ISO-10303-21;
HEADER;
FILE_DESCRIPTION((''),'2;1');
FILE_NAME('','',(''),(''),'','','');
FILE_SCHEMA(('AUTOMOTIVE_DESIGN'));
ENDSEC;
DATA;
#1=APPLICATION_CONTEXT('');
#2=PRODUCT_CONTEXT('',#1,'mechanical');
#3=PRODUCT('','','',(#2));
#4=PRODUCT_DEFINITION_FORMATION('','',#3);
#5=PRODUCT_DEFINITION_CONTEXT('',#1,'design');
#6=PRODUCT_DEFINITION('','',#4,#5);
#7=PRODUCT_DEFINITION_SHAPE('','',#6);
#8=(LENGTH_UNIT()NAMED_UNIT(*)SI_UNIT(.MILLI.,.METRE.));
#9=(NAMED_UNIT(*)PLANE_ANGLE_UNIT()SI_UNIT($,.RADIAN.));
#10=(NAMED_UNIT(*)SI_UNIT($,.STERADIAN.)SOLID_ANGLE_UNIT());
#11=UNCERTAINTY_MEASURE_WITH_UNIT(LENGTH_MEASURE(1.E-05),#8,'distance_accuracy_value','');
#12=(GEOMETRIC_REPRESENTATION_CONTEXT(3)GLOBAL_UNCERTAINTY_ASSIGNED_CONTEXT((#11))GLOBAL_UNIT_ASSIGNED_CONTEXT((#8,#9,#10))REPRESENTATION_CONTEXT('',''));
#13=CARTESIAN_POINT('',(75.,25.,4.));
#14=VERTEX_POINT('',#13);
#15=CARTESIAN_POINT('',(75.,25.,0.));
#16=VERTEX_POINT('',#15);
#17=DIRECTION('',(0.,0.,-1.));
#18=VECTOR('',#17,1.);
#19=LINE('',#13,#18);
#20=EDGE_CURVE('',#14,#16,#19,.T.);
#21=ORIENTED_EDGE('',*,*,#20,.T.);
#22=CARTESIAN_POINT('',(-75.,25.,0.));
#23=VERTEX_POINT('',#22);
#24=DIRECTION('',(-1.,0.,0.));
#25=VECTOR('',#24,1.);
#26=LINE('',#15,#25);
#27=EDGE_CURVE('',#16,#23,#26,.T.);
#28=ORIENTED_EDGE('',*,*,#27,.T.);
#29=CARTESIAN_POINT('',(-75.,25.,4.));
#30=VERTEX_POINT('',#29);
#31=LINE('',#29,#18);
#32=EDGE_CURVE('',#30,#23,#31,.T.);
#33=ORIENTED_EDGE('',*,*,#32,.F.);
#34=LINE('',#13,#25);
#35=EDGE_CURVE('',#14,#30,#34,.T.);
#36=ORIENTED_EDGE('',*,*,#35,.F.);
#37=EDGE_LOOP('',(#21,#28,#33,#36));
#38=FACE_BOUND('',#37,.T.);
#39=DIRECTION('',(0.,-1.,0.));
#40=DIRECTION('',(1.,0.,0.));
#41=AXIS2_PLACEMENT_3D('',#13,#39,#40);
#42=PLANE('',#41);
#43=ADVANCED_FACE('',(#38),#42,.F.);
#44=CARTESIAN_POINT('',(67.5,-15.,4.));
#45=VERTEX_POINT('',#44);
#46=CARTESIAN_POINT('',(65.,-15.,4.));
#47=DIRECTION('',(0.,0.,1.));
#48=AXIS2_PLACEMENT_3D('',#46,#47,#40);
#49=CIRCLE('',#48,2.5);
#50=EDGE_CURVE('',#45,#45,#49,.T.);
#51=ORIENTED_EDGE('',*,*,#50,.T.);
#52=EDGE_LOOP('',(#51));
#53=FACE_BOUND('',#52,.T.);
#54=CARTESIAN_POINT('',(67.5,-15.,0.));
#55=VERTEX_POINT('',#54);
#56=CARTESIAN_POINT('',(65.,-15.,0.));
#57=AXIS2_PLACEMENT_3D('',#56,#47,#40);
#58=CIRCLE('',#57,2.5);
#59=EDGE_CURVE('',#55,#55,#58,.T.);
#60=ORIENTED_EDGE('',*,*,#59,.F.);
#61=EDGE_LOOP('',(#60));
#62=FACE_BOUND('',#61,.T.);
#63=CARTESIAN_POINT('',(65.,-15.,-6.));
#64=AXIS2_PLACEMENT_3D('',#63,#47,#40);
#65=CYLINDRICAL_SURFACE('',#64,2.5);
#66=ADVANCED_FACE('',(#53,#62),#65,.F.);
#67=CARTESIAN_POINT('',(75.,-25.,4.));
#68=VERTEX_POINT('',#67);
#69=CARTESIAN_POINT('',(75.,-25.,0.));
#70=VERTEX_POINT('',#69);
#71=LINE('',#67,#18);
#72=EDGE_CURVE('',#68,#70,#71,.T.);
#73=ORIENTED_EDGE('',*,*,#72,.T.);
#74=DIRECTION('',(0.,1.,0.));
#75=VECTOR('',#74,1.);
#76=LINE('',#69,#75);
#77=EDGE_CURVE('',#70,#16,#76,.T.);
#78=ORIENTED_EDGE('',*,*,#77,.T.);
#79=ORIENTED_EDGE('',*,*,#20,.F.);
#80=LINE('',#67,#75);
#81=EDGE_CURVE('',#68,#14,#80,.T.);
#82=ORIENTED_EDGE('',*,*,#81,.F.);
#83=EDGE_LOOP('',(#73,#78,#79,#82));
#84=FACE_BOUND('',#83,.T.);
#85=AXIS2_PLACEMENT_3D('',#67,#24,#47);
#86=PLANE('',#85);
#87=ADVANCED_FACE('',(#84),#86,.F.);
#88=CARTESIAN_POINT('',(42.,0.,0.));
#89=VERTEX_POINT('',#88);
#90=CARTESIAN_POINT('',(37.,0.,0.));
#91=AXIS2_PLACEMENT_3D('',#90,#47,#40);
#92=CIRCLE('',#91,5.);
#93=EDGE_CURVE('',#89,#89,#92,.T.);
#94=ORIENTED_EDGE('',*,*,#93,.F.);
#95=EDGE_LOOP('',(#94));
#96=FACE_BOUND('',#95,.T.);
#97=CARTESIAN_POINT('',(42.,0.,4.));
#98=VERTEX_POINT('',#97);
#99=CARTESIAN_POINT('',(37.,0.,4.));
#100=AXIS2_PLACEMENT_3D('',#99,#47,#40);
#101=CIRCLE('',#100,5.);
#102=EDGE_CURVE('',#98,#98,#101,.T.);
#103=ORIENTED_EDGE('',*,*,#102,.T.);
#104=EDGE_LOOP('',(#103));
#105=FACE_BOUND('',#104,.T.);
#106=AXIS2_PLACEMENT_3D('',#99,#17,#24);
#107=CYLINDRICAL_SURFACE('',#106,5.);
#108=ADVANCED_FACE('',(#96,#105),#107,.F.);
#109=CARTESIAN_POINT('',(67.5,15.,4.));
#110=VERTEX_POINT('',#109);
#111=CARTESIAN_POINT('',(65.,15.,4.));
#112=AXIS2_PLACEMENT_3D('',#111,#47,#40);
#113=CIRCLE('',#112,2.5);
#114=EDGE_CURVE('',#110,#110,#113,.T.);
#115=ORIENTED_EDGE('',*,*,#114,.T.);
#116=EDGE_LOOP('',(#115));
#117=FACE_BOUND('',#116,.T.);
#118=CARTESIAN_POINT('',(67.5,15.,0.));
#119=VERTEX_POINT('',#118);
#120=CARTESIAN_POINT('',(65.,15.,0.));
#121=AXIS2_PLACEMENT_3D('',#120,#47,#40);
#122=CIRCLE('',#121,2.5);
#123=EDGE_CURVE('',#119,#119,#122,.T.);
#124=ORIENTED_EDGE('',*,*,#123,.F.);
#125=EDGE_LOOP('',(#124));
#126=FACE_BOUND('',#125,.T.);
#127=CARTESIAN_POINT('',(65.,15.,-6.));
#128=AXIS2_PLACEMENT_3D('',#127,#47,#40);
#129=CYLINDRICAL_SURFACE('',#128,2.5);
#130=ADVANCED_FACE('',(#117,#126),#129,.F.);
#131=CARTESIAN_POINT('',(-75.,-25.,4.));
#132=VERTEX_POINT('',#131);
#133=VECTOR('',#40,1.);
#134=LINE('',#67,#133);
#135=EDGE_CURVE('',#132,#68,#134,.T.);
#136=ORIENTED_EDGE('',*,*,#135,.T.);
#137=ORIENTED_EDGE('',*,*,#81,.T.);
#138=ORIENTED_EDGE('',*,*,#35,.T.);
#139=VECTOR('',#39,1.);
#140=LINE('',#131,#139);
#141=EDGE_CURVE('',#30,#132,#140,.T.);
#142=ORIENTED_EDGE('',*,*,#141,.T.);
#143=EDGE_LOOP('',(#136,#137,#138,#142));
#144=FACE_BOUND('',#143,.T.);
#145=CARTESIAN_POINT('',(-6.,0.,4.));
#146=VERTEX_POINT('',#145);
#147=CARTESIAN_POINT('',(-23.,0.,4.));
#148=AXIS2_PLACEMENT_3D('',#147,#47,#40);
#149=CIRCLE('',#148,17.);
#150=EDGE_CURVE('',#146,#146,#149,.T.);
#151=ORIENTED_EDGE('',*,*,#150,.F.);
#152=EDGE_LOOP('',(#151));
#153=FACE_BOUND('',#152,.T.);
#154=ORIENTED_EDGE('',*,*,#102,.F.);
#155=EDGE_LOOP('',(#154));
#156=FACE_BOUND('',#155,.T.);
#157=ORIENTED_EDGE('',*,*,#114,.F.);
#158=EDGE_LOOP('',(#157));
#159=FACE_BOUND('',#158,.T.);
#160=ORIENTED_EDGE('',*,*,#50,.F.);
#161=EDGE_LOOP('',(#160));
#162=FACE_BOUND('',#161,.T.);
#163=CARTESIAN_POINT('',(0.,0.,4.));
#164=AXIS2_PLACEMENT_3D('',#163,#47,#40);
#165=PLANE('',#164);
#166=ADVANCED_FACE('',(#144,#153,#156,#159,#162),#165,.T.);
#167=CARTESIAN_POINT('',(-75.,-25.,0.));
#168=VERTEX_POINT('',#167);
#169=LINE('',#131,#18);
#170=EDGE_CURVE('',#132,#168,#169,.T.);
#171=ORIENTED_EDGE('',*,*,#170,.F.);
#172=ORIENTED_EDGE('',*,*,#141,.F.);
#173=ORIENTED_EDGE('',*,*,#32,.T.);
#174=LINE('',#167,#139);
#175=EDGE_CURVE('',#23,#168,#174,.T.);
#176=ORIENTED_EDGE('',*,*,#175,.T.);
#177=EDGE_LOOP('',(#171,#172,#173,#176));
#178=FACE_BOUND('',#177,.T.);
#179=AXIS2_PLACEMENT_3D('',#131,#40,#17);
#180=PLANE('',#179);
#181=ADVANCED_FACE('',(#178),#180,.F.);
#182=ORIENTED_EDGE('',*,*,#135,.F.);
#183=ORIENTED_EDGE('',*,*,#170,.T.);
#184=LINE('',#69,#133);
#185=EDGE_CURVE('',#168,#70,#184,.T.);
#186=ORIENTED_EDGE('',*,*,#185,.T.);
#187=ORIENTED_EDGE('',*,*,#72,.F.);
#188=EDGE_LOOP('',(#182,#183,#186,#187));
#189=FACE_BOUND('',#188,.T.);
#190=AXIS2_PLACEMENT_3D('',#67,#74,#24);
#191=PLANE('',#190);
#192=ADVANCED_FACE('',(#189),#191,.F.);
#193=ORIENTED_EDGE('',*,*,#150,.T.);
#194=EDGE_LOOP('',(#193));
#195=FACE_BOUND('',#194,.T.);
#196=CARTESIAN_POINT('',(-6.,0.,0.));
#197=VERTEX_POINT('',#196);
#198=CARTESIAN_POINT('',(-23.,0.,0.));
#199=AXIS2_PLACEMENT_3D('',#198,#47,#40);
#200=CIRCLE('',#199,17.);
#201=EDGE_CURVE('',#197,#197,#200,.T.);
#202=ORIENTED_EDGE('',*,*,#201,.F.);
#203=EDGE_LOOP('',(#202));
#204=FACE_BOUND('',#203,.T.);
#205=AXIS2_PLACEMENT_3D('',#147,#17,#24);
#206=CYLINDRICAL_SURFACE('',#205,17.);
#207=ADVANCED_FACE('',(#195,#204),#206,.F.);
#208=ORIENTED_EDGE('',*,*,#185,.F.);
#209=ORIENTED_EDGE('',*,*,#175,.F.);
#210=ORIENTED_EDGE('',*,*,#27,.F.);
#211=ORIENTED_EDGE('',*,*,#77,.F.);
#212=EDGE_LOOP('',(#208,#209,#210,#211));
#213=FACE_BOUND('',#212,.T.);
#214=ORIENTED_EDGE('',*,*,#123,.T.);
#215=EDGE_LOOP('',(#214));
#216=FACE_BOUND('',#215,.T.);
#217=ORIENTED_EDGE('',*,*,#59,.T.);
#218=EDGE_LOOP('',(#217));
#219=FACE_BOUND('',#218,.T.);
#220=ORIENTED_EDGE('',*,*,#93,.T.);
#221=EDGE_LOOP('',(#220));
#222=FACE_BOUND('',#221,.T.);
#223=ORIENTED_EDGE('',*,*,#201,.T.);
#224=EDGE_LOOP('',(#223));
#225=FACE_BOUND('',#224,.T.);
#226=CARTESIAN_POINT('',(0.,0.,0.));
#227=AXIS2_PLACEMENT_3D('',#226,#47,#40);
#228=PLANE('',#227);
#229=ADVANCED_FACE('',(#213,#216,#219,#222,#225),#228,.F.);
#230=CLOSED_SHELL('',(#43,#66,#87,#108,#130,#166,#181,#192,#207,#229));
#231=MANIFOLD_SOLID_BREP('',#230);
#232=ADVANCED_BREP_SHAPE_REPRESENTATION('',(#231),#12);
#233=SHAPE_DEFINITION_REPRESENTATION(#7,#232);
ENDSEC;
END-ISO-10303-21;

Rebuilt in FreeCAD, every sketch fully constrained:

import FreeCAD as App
import Part
import Sketcher

V = App.Vector


def add_polygon(sketch, points):
    """Adds a closed chain of lines whose ends are joined by coincident constraints."""
    first, n = sketch.GeometryCount, len(points)
    for a, b in zip(points, points[1:] + points[:1]):
        sketch.addGeometry(Part.LineSegment(App.Vector(*a, 0), App.Vector(*b, 0)), False)
    for i in range(n):
        sketch.addConstraint(Sketcher.Constraint("Coincident", first + i, 2, first + (i + 1) % n, 1))

doc = App.newDocument("Part")
body = doc.addObject("PartDesign::Body", "Body")

sketch1 = body.newObject("Sketcher::SketchObject", "Sketch")
sketch1.AttachmentSupport = (doc.getObject("XY_Plane"), [""])
sketch1.MapMode = "FlatFace"
add_polygon(sketch1, [(-75, 25), (-75, -25), (75, -25), (75, 25)])
sketch1.addGeometry(Part.Circle(V(-23, 0, 0), V(0, 0, 1), 17), False)
sketch1.addGeometry(Part.Circle(V(37, 0, 0), V(0, 0, 1), 5), False)
sketch1.addConstraint([
    Sketcher.Constraint("Vertical", 0),
    Sketcher.Constraint("Horizontal", 1),
    Sketcher.Constraint("Vertical", 2),
    Sketcher.Constraint("Horizontal", 3),
    Sketcher.Constraint("Symmetric", 0, 2, 2, 2, -1, 1),
    Sketcher.Constraint("PointOnObject", 4, 3, -1),
    Sketcher.Constraint("PointOnObject", 5, 3, -1),
    Sketcher.Constraint("Diameter", 4, 34.0),
    Sketcher.Constraint("Diameter", 5, 10.0),
    Sketcher.Constraint("DistanceX", 1, 1, 1, 2, 150.0),
    Sketcher.Constraint("DistanceY", 0, 2, 0, 1, 50.0),
    Sketcher.Constraint("DistanceX", 4, 3, -1, 1, 23.0),
    Sketcher.Constraint("DistanceX", -1, 1, 5, 3, 37.0),
])
pad1 = body.newObject("PartDesign::Pad", "Pad")
pad1.Profile = sketch1
pad1.Length = 4

sketch2 = body.newObject("Sketcher::SketchObject", "Sketch001")
sketch2.AttachmentSupport = (doc.getObject("XY_Plane"), [""])
sketch2.MapMode = "FlatFace"
sketch2.AttachmentOffset = App.Placement(V(0, 0, 4), App.Rotation())
sketch2.addGeometry([
    Part.Circle(V(65, 15, 0), V(0, 0, 1), 2.5),
    Part.Circle(V(65, -15, 0), V(0, 0, 1), 2.5),
], False)
sketch2.addConstraint([
    Sketcher.Constraint("Equal", 0, 1),
    Sketcher.Constraint("Symmetric", 0, 3, 1, 3, -1),
    Sketcher.Constraint("Diameter", 0, 5.0),
    Sketcher.Constraint("DistanceX", -1, 1, 0, 3, 65.0),
    Sketcher.Constraint("DistanceY", -1, 1, 0, 3, 15.0),
])
pocket1 = body.newObject("PartDesign::Pocket", "Pocket")
pocket1.Profile = sketch2
pocket1.Length = 10

doc.recompute()
